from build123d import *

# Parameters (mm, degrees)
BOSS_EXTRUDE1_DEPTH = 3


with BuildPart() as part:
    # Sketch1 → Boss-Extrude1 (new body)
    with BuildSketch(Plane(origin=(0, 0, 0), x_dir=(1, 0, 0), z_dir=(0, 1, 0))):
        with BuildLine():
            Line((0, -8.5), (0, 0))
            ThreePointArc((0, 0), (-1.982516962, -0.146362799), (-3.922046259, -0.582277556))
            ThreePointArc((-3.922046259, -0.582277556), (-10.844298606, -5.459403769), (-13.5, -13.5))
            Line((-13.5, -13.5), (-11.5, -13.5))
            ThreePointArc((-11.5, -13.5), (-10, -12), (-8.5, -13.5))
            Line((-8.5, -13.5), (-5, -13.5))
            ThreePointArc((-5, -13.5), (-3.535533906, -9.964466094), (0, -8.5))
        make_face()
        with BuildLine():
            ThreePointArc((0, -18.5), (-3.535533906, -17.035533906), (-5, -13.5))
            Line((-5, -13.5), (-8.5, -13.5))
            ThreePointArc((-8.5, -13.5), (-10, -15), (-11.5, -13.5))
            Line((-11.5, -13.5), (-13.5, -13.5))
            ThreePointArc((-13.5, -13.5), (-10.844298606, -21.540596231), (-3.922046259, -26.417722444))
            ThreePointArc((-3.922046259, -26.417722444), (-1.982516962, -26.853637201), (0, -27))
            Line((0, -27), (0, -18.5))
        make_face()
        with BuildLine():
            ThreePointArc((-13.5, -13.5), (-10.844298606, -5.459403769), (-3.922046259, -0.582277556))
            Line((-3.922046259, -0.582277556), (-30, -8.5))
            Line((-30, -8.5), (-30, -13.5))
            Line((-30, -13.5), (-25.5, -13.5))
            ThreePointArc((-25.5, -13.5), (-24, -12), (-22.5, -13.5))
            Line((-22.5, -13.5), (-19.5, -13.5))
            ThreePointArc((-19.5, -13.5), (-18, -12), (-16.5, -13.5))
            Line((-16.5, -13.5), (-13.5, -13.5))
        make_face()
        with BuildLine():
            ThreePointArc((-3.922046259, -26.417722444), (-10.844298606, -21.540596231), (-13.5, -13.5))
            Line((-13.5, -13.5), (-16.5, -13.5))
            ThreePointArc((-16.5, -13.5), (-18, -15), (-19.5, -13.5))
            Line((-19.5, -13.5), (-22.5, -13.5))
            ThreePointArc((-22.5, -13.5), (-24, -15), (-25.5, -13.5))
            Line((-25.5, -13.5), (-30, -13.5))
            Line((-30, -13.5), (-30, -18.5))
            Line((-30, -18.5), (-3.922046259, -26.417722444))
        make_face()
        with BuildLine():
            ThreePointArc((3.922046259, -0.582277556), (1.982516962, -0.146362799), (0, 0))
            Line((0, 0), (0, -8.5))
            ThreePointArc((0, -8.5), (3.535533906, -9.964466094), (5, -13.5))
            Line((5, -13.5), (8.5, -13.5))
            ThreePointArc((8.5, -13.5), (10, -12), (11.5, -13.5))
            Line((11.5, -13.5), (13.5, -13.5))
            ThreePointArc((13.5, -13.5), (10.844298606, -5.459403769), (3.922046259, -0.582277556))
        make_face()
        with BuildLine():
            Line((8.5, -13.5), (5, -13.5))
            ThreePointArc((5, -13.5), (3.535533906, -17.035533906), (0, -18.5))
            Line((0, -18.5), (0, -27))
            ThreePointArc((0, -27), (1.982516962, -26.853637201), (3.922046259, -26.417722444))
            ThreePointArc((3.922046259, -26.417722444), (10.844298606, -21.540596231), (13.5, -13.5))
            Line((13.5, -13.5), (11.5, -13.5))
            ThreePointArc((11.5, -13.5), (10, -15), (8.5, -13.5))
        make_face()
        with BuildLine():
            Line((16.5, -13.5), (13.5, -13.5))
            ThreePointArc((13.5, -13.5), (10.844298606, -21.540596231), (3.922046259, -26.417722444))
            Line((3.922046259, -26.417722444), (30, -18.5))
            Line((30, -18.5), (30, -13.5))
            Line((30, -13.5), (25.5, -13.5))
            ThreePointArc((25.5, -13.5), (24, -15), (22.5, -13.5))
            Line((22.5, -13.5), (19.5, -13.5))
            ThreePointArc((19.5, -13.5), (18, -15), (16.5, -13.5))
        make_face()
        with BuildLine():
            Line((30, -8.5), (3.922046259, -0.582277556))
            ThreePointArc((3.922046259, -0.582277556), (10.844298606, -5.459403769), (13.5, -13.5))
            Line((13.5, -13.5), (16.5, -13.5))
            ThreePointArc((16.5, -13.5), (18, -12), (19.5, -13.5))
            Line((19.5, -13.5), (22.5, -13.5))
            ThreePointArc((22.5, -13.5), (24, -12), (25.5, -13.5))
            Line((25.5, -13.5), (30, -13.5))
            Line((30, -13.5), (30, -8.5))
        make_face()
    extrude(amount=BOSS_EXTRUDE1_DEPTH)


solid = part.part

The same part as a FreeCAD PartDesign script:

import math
import FreeCAD as App
import Part
import Sketcher
from FreeCAD import Vector

doc = App.newDocument("Part")
params = doc.addObject("Spreadsheet::Sheet", "Params")
for row, (alias, value) in enumerate([
    ("sketch1_diameter", "3 mm"),
    ("sketch1_radius", "5 mm"),
    ("sketch1_radius2", "13.5 mm"),
    ("pad1_length", "3 mm"),
], start=1):
    params.set(f"A{row}", alias)
    params.set(f"B{row}", "=" + value)
    params.setAlias(f"B{row}", alias)

body = doc.addObject("PartDesign::Body", "Body")

# Sketch on XZ plane
sketch1 = doc.addObject("Sketcher::SketchObject", "Sketch")
body.addObject(sketch1)
sketch1.AttachmentSupport = (doc.XZ_Plane, [""])
sketch1.MapMode = "FlatFace"
sketch1.addGeometry(Part.LineSegment(Vector(-3.9, 0.6, 0), Vector(-30, 8.5, 0)), False)
sketch1.addGeometry(Part.LineSegment(Vector(-30, 8.5, 0), Vector(-30, 18.5, 0)), False)
sketch1.addGeometry(Part.LineSegment(Vector(-30, 18.5, 0), Vector(-3.9, 26.4, 0)), False)
sketch1.addGeometry(Part.ArcOfCircle(Part.Circle(Vector(0, 13.5, 0), Vector(0, 0, 1), 13.5), math.radians(90), math.radians(106.89)), False)
sketch1.addGeometry(Part.ArcOfCircle(Part.Circle(Vector(0, 13.5, 0), Vector(0, 0, 1), 13.5), math.radians(73.11), math.radians(90)), False)
sketch1.addGeometry(Part.LineSegment(Vector(3.9, 26.4, 0), Vector(30, 18.5, 0)), False)
sketch1.addGeometry(Part.LineSegment(Vector(30, 18.5, 0), Vector(30, 8.5, 0)), False)
sketch1.addGeometry(Part.LineSegment(Vector(30, 8.5, 0), Vector(3.9, 0.6, 0)), False)
sketch1.addGeometry(Part.ArcOfCircle(Part.Circle(Vector(0, 13.5, 0), Vector(0, 0, 1), 13.5), math.radians(-90), math.radians(-73.11)), False)
sketch1.addGeometry(Part.ArcOfCircle(Part.Circle(Vector(0, 13.5, 0), Vector(0, 0, 1), 13.5), math.radians(-106.89), math.radians(-90)), False)
sketch1.addGeometry(Part.Circle(Vector(24, 13.5, 0), Vector(0, 0, 1), 1.5), False)
sketch1.addGeometry(Part.Circle(Vector(18, 13.5, 0), Vector(0, 0, 1), 1.5), False)
sketch1.addGeometry(Part.Circle(Vector(10, 13.5, 0), Vector(0, 0, 1), 1.5), False)
sketch1.addGeometry(Part.ArcOfCircle(Part.Circle(Vector(0, 13.5, 0), Vector(0, 0, 1), 5), math.radians(-90), math.radians(0)), False)
sketch1.addGeometry(Part.ArcOfCircle(Part.Circle(Vector(0, 13.5, 0), Vector(0, 0, 1), 5), math.radians(0), math.radians(90)), False)
sketch1.addGeometry(Part.ArcOfCircle(Part.Circle(Vector(0, 13.5, 0), Vector(0, 0, 1), 5), math.radians(90), math.radians(180)), False)
sketch1.addGeometry(Part.ArcOfCircle(Part.Circle(Vector(0, 13.5, 0), Vector(0, 0, 1), 5), math.radians(180), math.radians(270)), False)
sketch1.addGeometry(Part.Circle(Vector(-24, 13.5, 0), Vector(0, 0, 1), 1.5), False)
sketch1.addGeometry(Part.Circle(Vector(-18, 13.5, 0), Vector(0, 0, 1), 1.5), False)
sketch1.addGeometry(Part.Circle(Vector(-10, 13.5, 0), Vector(0, 0, 1), 1.5), False)
sketch1.addConstraint(Sketcher.Constraint("Coincident", 0, 2, 1, 1))
sketch1.addConstraint(Sketcher.Constraint("Coincident", 1, 2, 2, 1))
sketch1.addConstraint(Sketcher.Constraint("Tangent", 2, 2, 3, 2))
sketch1.addConstraint(Sketcher.Constraint("Tangent", 3, 1, 4, 2))
sketch1.addConstraint(Sketcher.Constraint("Tangent", 4, 1, 5, 1))
sketch1.addConstraint(Sketcher.Constraint("Coincident", 5, 2, 6, 1))
sketch1.addConstraint(Sketcher.Constraint("Coincident", 6, 2, 7, 1))
sketch1.addConstraint(Sketcher.Constraint("Tangent", 7, 2, 8, 2))
sketch1.addConstraint(Sketcher.Constraint("Tangent", 8, 1, 9, 2))
sketch1.addConstraint(Sketcher.Constraint("Tangent", 9, 1, 0, 1))
sketch1.addConstraint(Sketcher.Constraint("Tangent", 13, 2, 14, 1))
sketch1.addConstraint(Sketcher.Constraint("Tangent", 14, 2, 15, 1))
sketch1.addConstraint(Sketcher.Constraint("Tangent", 15, 2, 16, 1))
sketch1.addConstraint(Sketcher.Constraint("Tangent", 16, 2, 13, 1))
sketch1.addConstraint(Sketcher.Constraint("Vertical", 1))
sketch1.addConstraint(Sketcher.Constraint("Vertical", 6))
sketch1.addConstraint(Sketcher.Constraint("Coincident", 8, 1, -1, 1))
sketch1.addConstraint(Sketcher.Constraint("Coincident", 8, 3, 3, 3))
sketch1.addConstraint(Sketcher.Constraint("Coincident", 13, 3, 3, 3))
sketch1.addConstraint(Sketcher.Constraint("Equal", 3, 4))
sketch1.addConstraint(Sketcher.Constraint("Equal", 4, 8))
sketch1.addConstraint(Sketcher.Constraint("Equal", 8, 9))
sketch1.addConstraint(Sketcher.Constraint("Equal", 10, 11))
sketch1.addConstraint(Sketcher.Constraint("Equal", 11, 12))
sketch1.addConstraint(Sketcher.Constraint("Equal", 13, 14))
sketch1.addConstraint(Sketcher.Constraint("Equal", 12, 17))
sketch1.addConstraint(Sketcher.Constraint("Equal", 17, 18))
sketch1.addConstraint(Sketcher.Constraint("Equal", 18, 19))
sketch1.addConstraint(Sketcher.Constraint("Symmetric", 10, 3, 17, 3, -2))
sketch1.addConstraint(Sketcher.Constraint("Symmetric", 11, 3, 18, 3, -2))
sketch1.addConstraint(Sketcher.Constraint("Symmetric", 12, 3, 19, 3, -2))
sketch1.addConstraint(Sketcher.Constraint("Symmetric", 2, 2, 4, 1, -2))
sketch1.addConstraint(Sketcher.Constraint("Symmetric", 0, 2, 6, 2, -2))
sketch1.addConstraint(Sketcher.Constraint("PointOnObject", 3, 1, -2))
sketch1.addConstraint(Sketcher.Constraint("PointOnObject", 14, 2, -2))
sketch1.addConstraint(Sketcher.Constraint("PointOnObject", 16, 2, -2))
sketch1.addConstraint(Sketcher.Constraint("Parallel", 0, 5))
sketch1.addConstraint(Sketcher.Constraint("Horizontal", 9, 3, 10, 3))
sketch1.addConstraint(Sketcher.Constraint("Horizontal", 10, 3, 11, 3))
sketch1.addConstraint(Sketcher.Constraint("Horizontal", 11, 3, 12, 3))
sketch1.addConstraint(Sketcher.Constraint("Horizontal", 19, 3, 13, 2))
sketch1.addConstraint(Sketcher.Constraint("Horizontal", 5, 2, 14, 2))
sketch1.addConstraint(Sketcher.Constraint("Horizontal", 13, 2, 15, 2))
sketch1.addConstraint(Sketcher.Constraint("Diameter", 10, 3.0))
sketch1.addConstraint(Sketcher.Constraint("Radius", 13, 5.0))
sketch1.addConstraint(Sketcher.Constraint("Radius", 3, 13.5))
sketch1.addConstraint(Sketcher.Constraint("DistanceX", -1, 1, 10, 3, 24.0))
sketch1.addConstraint(Sketcher.Constraint("DistanceX", -1, 1, 11, 3, 18.0))
sketch1.addConstraint(Sketcher.Constraint("DistanceX", -1, 1, 12, 3, 10.0))
sketch1.addConstraint(Sketcher.Constraint("DistanceX", 0, 2, -1, 1, 30.0))
sketch1.setExpression("Constraints[43]", "Params.sketch1_diameter")
sketch1.setExpression("Constraints[44]", "Params.sketch1_radius")
sketch1.setExpression("Constraints[45]", "Params.sketch1_radius2")
pad1 = doc.addObject("PartDesign::Pad", "Pad")
body.addObject(pad1)
pad1.Profile = sketch1
pad1.setExpression("Length", "Params.pad1_length")
pad1.Reversed = True

doc.recompute()
